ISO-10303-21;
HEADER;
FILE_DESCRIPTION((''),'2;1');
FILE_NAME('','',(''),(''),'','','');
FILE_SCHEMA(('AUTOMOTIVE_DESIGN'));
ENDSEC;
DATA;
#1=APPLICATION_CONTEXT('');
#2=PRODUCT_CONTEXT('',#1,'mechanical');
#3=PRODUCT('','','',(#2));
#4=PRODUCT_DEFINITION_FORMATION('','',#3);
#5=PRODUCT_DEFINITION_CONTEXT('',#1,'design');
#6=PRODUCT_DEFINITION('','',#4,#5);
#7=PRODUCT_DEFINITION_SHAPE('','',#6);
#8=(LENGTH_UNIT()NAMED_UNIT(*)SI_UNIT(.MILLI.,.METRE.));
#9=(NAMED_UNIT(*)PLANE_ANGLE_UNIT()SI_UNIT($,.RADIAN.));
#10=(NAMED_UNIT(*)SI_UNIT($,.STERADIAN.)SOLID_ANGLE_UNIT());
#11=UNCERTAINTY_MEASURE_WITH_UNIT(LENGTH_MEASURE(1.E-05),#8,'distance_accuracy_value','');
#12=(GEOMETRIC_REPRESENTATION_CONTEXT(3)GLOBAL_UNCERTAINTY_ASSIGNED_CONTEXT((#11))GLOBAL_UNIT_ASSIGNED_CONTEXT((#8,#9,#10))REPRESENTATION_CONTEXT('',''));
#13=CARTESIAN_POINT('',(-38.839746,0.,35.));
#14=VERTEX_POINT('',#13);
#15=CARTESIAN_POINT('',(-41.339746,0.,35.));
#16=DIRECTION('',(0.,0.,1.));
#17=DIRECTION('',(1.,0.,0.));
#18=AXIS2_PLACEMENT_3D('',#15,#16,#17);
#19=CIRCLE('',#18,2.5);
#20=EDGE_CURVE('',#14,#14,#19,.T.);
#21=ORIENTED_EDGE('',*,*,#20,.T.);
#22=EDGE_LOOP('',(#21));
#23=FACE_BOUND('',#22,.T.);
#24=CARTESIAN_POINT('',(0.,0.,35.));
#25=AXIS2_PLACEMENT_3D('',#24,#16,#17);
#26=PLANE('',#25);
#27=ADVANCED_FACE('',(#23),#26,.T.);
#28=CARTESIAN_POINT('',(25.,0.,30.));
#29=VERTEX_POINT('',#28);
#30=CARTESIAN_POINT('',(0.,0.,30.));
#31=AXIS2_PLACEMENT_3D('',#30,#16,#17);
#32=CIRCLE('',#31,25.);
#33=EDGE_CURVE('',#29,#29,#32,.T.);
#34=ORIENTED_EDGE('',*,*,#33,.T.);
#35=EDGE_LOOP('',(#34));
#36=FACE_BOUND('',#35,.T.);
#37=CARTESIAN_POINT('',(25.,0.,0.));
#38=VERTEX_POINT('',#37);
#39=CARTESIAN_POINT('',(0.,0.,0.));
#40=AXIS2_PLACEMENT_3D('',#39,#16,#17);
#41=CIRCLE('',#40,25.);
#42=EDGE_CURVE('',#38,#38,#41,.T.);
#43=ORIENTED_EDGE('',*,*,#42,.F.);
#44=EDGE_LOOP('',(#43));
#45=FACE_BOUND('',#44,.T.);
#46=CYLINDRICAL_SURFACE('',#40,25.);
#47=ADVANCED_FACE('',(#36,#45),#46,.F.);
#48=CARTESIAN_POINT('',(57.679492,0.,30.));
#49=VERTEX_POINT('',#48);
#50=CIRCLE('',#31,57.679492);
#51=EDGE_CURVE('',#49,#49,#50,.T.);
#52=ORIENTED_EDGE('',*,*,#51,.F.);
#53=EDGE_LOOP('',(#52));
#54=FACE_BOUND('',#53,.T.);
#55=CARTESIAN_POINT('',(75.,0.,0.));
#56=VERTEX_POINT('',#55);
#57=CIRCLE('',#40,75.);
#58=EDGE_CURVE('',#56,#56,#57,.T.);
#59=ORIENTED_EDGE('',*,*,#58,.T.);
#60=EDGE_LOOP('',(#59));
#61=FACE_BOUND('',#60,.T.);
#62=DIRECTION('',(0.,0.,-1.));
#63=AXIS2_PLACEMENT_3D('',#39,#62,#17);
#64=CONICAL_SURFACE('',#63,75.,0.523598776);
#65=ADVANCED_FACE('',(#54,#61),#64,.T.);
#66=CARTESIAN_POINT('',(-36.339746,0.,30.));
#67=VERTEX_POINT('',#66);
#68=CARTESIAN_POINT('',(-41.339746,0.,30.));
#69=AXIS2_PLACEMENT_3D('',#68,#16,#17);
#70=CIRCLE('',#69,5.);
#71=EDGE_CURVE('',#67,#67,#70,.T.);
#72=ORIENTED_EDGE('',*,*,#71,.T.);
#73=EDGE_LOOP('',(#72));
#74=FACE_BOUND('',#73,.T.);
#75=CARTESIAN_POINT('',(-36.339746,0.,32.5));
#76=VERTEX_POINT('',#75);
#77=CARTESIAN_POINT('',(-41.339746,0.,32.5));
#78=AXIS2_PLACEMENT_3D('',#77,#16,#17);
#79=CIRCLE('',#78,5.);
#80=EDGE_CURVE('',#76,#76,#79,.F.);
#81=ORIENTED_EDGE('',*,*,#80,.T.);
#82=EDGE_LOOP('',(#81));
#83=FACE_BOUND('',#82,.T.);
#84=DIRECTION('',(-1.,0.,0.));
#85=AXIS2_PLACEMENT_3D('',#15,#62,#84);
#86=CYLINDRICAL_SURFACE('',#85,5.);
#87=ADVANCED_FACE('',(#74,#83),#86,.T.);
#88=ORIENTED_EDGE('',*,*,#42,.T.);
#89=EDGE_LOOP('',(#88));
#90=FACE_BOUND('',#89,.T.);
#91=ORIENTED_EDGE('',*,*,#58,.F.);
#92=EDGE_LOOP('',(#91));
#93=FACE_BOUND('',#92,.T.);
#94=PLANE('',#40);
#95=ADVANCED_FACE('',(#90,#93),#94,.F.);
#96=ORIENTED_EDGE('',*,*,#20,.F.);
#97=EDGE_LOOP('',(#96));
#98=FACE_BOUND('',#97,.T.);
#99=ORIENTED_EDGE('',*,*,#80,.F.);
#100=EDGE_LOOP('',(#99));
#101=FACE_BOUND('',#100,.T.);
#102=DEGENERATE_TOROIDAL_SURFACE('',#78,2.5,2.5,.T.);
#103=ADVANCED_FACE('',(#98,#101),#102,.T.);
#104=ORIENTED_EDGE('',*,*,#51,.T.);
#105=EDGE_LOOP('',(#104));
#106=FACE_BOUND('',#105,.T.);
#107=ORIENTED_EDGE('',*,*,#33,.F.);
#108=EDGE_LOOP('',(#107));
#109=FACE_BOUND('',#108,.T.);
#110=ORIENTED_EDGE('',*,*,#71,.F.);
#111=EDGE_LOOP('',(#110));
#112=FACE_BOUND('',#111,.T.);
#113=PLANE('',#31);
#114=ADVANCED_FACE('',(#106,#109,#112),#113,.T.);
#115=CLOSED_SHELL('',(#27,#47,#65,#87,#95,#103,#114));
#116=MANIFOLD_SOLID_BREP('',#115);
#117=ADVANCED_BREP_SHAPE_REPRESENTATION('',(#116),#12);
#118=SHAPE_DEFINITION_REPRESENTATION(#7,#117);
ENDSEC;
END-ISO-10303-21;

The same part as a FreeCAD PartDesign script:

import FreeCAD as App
import Part
import Sketcher
from FreeCAD import Vector
Q = App.Units.Quantity


def edges_at(feature, points):
    """Names of the edges that pass closest to the given points."""
    edges = feature.Shape.Edges
    near = lambda p: min(range(len(edges)), key=lambda i: edges[i].distToShape(Part.Vertex(*p))[0])
    return sorted({f"Edge{near(p) + 1}" for p in points})

doc = App.newDocument("Part")
body = doc.addObject("PartDesign::Body", "Body")

# Sketch on XY plane
sketch1 = body.newObject("Sketcher::SketchObject", "Sketch")
sketch1.AttachmentSupport = (doc.getObject("XY_Plane"), [""])
sketch1.MapMode = "FlatFace"
sketch1.addGeometry(Part.Circle(Vector(0, 0, 0), Vector(0, 0, 1), 75), False)
sketch1.addConstraint([
    Sketcher.Constraint("Coincident", 0, 3, -1, 1),
    Sketcher.Constraint("Diameter", 0, Q("150 mm")),
])
pad1 = body.newObject("PartDesign::Pad", "Pad")
pad1.Profile = sketch1
pad1.Length = 30
pad1.TaperAngle = -30

# Sketch on XY plane
sketch2 = body.newObject("Sketcher::SketchObject", "Sketch001")
sketch2.AttachmentSupport = (doc.getObject("XY_Plane"), [""])
sketch2.MapMode = "FlatFace"
sketch2.AttachmentOffset = App.Placement(Vector(0, 0, 30), App.Rotation())
sketch2.addGeometry(Part.Circle(Vector(0, 0, 0), Vector(0, 0, 1), 25), False)
sketch2.addConstraint([
    Sketcher.Constraint("Coincident", 0, 3, -1, 1),
    Sketcher.Constraint("Diameter", 0, Q("50 mm")),
])
pocket1 = body.newObject("PartDesign::Pocket", "Pocket")
pocket1.Profile = sketch2
pocket1.Type = "ThroughAll"
pocket1.Midplane = True

# Sketch on XY plane
sketch3 = body.newObject("Sketcher::SketchObject", "Sketch002")
sketch3.AttachmentSupport = (doc.getObject("XY_Plane"), [""])
sketch3.MapMode = "FlatFace"
sketch3.AttachmentOffset = App.Placement(Vector(0, 0, 30), App.Rotation())
sketch3.addGeometry(Part.Circle(Vector(-41.339746, 0, 0), Vector(0, 0, 1), 5), False)
sketch3.addConstraint([
    Sketcher.Constraint("PointOnObject", 0, 3, -1),
    Sketcher.Constraint("Diameter", 0, Q("10 mm")),
    Sketcher.Constraint("DistanceX", 0, 3, -1, 1, Q("41.339746 mm")),
])
pad2 = body.newObject("PartDesign::Pad", "Pad001")
pad2.Profile = sketch3
pad2.Length = 5
doc.recompute()

fillet = body.newObject("PartDesign::Fillet", "Fillet")
fillet.Base = (pad2, edges_at(pad2, [(-46.34, 0, 35)]))
fillet.Radius = 2.5

doc.recompute()
